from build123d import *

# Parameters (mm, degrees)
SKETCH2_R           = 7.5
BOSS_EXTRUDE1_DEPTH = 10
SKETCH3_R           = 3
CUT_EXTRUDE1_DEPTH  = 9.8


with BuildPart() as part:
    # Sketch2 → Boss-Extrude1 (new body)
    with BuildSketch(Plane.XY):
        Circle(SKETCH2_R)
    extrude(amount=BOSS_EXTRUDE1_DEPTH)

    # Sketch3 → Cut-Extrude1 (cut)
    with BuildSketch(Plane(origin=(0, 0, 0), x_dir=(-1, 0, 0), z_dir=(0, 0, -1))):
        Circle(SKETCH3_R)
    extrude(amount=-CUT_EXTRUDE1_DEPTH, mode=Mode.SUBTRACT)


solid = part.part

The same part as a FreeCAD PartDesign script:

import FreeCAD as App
import Part
import Sketcher

doc = App.newDocument("Part")
body = doc.addObject("PartDesign::Body", "Body")

# Sketch on XY plane
sketch1 = body.newObject("Sketcher::SketchObject", "Sketch")
sketch1.AttachmentSupport = (doc.getObject("XY_Plane"), [""])
sketch1.MapMode = "FlatFace"
sketch1.addGeometry(Part.Circle(App.Vector(0, 0, 0), App.Vector(0, 0, 1), 8), False)
sketch1.addConstraint(Sketcher.Constraint("Coincident", 0, 3, -1, 1))
sketch1.addConstraint(Sketcher.Constraint("Diameter", 0, 15.0))
pad1 = body.newObject("PartDesign::Pad", "Pad")
pad1.Profile = sketch1
pad1.Length = 10

# Sketch on XY plane
sketch2 = body.newObject("Sketcher::SketchObject", "Sketch001")
sketch2.AttachmentSupport = (doc.getObject("XY_Plane"), [""])
sketch2.MapMode = "FlatFace"
sketch2.addGeometry(Part.Circle(App.Vector(0, 0, 0), App.Vector(0, 0, 1), 3), False)
sketch2.addConstraint(Sketcher.Constraint("Coincident", 0, 3, -1, 1))
sketch2.addConstraint(Sketcher.Constraint("Diameter", 0, 6.0))
pocket1 = body.newObject("PartDesign::Pocket", "Pocket")
pocket1.Profile = sketch2
pocket1.Length = 9.8
pocket1.Reversed = True

doc.recompute()
